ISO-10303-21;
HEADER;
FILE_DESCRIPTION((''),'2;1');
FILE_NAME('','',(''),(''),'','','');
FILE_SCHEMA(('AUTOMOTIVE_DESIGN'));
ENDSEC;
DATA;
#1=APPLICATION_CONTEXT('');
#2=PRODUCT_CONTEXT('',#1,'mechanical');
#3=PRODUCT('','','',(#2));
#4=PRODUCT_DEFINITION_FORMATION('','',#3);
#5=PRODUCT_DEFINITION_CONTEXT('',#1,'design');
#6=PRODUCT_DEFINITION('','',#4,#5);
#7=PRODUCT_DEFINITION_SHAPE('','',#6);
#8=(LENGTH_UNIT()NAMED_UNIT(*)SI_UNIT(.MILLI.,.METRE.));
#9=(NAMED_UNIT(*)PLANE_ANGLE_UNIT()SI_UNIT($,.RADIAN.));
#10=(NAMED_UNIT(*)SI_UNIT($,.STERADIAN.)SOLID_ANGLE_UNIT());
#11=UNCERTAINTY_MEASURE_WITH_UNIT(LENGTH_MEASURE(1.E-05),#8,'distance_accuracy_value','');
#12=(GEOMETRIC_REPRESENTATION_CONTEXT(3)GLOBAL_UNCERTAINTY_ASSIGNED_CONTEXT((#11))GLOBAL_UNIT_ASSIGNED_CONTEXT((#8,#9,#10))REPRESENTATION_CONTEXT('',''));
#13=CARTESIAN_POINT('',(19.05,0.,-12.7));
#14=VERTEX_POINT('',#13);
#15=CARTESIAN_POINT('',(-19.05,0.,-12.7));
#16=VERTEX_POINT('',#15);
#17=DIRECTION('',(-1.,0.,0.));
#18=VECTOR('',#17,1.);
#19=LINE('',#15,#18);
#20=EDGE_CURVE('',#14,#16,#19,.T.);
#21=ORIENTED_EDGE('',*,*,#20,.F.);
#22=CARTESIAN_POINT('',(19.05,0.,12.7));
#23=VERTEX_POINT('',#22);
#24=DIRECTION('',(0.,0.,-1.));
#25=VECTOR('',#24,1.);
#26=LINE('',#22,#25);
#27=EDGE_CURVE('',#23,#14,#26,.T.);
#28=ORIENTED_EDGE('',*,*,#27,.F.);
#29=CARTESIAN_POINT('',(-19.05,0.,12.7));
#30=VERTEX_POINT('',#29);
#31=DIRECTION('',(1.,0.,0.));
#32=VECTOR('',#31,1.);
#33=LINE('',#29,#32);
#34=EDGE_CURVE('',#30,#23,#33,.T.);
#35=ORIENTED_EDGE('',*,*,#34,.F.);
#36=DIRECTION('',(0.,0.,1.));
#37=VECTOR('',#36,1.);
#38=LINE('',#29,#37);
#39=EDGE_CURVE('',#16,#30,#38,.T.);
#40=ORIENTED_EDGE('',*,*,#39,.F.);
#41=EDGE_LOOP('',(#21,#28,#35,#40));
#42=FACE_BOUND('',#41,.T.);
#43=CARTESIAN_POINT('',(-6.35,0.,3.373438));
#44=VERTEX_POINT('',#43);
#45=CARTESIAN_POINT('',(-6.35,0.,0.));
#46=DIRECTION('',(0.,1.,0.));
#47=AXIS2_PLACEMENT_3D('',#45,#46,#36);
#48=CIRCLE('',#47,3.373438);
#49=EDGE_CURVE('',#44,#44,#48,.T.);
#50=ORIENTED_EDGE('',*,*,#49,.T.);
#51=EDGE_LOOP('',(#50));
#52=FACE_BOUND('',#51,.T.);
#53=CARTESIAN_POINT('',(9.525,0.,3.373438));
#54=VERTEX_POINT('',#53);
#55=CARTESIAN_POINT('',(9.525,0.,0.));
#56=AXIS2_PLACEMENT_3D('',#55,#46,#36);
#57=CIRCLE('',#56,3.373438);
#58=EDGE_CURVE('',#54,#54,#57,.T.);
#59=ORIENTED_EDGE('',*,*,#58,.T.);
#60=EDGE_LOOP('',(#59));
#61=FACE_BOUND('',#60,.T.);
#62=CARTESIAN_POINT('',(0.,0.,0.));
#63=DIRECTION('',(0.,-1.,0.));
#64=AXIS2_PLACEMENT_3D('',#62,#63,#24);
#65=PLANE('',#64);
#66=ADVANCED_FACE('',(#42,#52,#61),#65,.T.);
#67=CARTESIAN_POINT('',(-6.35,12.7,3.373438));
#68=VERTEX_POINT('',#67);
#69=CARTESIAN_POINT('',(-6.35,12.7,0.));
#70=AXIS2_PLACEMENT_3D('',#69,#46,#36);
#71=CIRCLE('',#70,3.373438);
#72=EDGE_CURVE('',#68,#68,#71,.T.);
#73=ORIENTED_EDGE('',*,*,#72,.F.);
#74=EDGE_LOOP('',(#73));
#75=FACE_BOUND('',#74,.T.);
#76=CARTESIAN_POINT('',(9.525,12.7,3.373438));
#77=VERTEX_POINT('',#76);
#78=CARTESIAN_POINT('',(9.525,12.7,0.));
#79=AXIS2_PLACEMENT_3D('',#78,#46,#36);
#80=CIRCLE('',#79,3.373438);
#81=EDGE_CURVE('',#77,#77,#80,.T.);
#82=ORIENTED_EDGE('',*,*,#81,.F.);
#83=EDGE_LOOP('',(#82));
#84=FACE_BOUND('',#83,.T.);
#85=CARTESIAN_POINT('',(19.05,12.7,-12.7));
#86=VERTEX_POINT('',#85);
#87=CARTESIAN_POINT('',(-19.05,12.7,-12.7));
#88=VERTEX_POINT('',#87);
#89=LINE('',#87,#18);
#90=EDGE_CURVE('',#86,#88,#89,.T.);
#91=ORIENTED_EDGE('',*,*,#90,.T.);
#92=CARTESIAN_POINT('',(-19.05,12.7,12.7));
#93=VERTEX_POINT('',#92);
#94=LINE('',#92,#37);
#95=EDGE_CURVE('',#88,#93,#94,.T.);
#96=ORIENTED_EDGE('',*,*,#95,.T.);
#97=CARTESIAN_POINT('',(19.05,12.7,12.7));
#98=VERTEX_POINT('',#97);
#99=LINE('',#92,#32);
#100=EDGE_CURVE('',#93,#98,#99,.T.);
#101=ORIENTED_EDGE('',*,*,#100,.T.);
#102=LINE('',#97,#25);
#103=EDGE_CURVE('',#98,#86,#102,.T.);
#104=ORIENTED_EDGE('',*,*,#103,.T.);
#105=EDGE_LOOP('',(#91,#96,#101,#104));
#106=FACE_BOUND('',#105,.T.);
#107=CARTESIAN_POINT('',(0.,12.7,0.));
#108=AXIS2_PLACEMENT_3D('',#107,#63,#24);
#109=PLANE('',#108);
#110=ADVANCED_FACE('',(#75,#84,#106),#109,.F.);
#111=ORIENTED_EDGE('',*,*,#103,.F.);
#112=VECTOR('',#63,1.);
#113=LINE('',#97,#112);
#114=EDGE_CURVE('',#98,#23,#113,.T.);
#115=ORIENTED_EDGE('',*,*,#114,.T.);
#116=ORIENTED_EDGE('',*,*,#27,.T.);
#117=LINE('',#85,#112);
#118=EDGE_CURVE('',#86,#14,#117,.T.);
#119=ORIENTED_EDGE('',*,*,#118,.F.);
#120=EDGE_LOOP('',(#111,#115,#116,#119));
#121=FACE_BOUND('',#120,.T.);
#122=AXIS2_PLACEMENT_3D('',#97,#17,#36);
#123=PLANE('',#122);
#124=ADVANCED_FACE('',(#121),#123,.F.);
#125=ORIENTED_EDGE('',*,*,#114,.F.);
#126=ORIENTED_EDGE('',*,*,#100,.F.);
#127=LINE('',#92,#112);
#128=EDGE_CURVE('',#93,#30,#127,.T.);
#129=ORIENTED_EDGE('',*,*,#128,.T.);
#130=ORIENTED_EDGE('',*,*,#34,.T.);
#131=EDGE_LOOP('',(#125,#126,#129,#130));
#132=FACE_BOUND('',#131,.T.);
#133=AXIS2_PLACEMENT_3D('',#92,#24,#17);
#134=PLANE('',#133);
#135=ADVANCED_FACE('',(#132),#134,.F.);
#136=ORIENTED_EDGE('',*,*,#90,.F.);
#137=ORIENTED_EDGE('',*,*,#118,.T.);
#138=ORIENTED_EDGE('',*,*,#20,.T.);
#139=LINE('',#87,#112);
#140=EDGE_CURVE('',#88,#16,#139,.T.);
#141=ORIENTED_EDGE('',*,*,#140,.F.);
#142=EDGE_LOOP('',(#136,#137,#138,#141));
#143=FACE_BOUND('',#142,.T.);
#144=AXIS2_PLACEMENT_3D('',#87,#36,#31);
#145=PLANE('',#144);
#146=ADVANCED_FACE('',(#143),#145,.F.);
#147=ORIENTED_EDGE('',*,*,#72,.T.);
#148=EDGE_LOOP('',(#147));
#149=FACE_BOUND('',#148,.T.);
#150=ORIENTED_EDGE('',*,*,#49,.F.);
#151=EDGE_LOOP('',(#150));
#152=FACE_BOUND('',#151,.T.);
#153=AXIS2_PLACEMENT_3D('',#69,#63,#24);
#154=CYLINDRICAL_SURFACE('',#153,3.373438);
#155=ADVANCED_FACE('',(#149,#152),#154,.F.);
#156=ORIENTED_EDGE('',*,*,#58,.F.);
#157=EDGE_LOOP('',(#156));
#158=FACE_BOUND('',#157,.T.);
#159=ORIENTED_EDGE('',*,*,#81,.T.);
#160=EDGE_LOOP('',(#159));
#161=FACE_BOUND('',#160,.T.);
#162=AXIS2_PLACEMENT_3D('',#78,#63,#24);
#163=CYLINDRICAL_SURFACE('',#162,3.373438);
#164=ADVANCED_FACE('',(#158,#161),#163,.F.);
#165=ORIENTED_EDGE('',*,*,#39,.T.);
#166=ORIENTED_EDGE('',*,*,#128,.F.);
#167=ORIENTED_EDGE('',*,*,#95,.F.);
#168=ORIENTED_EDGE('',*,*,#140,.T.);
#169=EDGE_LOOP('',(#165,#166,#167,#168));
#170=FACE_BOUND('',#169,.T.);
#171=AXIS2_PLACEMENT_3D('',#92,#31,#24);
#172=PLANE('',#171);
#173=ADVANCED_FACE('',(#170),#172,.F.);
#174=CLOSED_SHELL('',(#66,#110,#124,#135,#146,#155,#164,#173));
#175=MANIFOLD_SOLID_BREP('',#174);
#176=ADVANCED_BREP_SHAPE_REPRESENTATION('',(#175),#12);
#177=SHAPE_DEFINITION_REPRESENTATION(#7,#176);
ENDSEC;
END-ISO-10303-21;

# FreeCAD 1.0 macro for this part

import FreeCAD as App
import Part
import Sketcher
Q = App.Units.Quantity

doc = App.newDocument("Part")
body = doc.addObject("PartDesign::Body", "Body")

sketch1 = doc.addObject("Sketcher::SketchObject", "Sketch")
body.addObject(sketch1)
sketch1.AttachmentSupport = (doc.XZ_Plane, [""])
sketch1.MapMode = "FlatFace"
sketch1.addGeometry(Part.LineSegment(App.Vector(-19.05, -12.7, 0), App.Vector(-19.05, 12.7, 0)), False)
sketch1.addGeometry(Part.LineSegment(App.Vector(-19.05, 12.7, 0), App.Vector(19.05, 12.7, 0)), False)
sketch1.addGeometry(Part.LineSegment(App.Vector(19.05, 12.7, 0), App.Vector(19.05, -12.7, 0)), False)
sketch1.addGeometry(Part.LineSegment(App.Vector(19.05, -12.7, 0), App.Vector(-19.05, -12.7, 0)), False)
sketch1.addGeometry(Part.Circle(App.Vector(-6.35, 0, 0), App.Vector(0, 0, 1), 3.373438), False)
sketch1.addGeometry(Part.Circle(App.Vector(9.525, 0, 0), App.Vector(0, 0, 1), 3.373438), False)
sketch1.addConstraint(Sketcher.Constraint("Coincident", 0, 2, 1, 1))
sketch1.addConstraint(Sketcher.Constraint("Coincident", 1, 2, 2, 1))
sketch1.addConstraint(Sketcher.Constraint("Coincident", 2, 2, 3, 1))
sketch1.addConstraint(Sketcher.Constraint("Coincident", 3, 2, 0, 1))
sketch1.addConstraint(Sketcher.Constraint("Vertical", 0))
sketch1.addConstraint(Sketcher.Constraint("Horizontal", 1))
sketch1.addConstraint(Sketcher.Constraint("Vertical", 2))
sketch1.addConstraint(Sketcher.Constraint("Horizontal", 3))
sketch1.addConstraint(Sketcher.Constraint("Equal", 4, 5))
sketch1.addConstraint(Sketcher.Constraint("Symmetric", 0, 2, 2, 2, -1, 1))
sketch1.addConstraint(Sketcher.Constraint("PointOnObject", 4, 3, -1))
sketch1.addConstraint(Sketcher.Constraint("PointOnObject", 5, 3, -1))
sketch1.addConstraint(Sketcher.Constraint("DistanceY", 0, 1, 0, 2, Q("1 in")))
sketch1.addConstraint(Sketcher.Constraint("Diameter", 4, Q("0.265625 in")))
sketch1.addConstraint(Sketcher.Constraint("DistanceX", 1, 1, 1, 2, Q("1.5 in")))
sketch1.addConstraint(Sketcher.Constraint("DistanceX", 4, 3, 1, 2, Q("1 in")))
sketch1.addConstraint(Sketcher.Constraint("DistanceX", -1, 1, 5, 3, Q("0.375 in")))
pad1 = doc.addObject("PartDesign::Pad", "Pad")
body.addObject(pad1)
pad1.Profile = sketch1
pad1.Length = Q("0.5 in")
pad1.Reversed = True

doc.recompute()
